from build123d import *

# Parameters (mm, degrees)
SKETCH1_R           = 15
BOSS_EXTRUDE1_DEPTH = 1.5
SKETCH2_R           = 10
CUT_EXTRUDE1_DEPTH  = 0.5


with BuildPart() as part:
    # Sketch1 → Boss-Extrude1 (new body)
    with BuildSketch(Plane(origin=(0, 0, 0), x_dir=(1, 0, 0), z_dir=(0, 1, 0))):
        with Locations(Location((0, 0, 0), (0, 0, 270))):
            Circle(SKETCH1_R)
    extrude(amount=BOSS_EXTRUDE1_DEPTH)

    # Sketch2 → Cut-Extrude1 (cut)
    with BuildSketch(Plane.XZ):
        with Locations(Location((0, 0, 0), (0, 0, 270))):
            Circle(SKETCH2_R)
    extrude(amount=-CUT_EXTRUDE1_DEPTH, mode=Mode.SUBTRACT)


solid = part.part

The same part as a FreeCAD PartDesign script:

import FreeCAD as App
import Part
import Sketcher

V = App.Vector
Q = App.Units.Quantity

doc = App.newDocument("Part")
params = doc.addObject("Spreadsheet::Sheet", "Params")
for row, (alias, value) in enumerate([
    ("sketch1_diameter", "30 mm"),
    ("pad1_length", "1.5 mm"),
    ("sketch2_diameter", "20 mm"),
    ("pocket1_length", "0.5 mm"),
], start=1):
    params.set(f"A{row}", alias)
    params.set(f"B{row}", "=" + value)
    params.setAlias(f"B{row}", alias)

body = doc.addObject("PartDesign::Body", "Body")

# Sketch on XZ plane
sketch1 = body.newObject("Sketcher::SketchObject", "Sketch")
sketch1.AttachmentSupport = (doc.getObject("XZ_Plane"), [""])
sketch1.MapMode = "FlatFace"
sketch1.addGeometry(Part.Circle(V(0, 0, 0), V(0, 0, 1), 15), False)
sketch1.addConstraint([
    Sketcher.Constraint("Coincident", 0, 3, -1, 1),
    Sketcher.Constraint("Diameter", 0, Q("30 mm")),
])
sketch1.setExpression("Constraints[1]", "Params.sketch1_diameter")
pad1 = body.newObject("PartDesign::Pad", "Pad")
pad1.Profile = sketch1
pad1.setExpression("Length", "Params.pad1_length")
pad1.Reversed = True

# Sketch on XZ plane
sketch2 = body.newObject("Sketcher::SketchObject", "Sketch001")
sketch2.AttachmentSupport = (doc.getObject("XZ_Plane"), [""])
sketch2.MapMode = "FlatFace"
sketch2.addGeometry(Part.Circle(V(0, 0, 0), V(0, 0, 1), 10), False)
sketch2.addConstraint([
    Sketcher.Constraint("Coincident", 0, 3, -1, 1),
    Sketcher.Constraint("Diameter", 0, Q("20 mm")),
])
sketch2.setExpression("Constraints[1]", "Params.sketch2_diameter")
pocket1 = body.newObject("PartDesign::Pocket", "Pocket")
pocket1.Profile = sketch2
pocket1.setExpression("Length", "Params.pocket1_length")

doc.recompute()
